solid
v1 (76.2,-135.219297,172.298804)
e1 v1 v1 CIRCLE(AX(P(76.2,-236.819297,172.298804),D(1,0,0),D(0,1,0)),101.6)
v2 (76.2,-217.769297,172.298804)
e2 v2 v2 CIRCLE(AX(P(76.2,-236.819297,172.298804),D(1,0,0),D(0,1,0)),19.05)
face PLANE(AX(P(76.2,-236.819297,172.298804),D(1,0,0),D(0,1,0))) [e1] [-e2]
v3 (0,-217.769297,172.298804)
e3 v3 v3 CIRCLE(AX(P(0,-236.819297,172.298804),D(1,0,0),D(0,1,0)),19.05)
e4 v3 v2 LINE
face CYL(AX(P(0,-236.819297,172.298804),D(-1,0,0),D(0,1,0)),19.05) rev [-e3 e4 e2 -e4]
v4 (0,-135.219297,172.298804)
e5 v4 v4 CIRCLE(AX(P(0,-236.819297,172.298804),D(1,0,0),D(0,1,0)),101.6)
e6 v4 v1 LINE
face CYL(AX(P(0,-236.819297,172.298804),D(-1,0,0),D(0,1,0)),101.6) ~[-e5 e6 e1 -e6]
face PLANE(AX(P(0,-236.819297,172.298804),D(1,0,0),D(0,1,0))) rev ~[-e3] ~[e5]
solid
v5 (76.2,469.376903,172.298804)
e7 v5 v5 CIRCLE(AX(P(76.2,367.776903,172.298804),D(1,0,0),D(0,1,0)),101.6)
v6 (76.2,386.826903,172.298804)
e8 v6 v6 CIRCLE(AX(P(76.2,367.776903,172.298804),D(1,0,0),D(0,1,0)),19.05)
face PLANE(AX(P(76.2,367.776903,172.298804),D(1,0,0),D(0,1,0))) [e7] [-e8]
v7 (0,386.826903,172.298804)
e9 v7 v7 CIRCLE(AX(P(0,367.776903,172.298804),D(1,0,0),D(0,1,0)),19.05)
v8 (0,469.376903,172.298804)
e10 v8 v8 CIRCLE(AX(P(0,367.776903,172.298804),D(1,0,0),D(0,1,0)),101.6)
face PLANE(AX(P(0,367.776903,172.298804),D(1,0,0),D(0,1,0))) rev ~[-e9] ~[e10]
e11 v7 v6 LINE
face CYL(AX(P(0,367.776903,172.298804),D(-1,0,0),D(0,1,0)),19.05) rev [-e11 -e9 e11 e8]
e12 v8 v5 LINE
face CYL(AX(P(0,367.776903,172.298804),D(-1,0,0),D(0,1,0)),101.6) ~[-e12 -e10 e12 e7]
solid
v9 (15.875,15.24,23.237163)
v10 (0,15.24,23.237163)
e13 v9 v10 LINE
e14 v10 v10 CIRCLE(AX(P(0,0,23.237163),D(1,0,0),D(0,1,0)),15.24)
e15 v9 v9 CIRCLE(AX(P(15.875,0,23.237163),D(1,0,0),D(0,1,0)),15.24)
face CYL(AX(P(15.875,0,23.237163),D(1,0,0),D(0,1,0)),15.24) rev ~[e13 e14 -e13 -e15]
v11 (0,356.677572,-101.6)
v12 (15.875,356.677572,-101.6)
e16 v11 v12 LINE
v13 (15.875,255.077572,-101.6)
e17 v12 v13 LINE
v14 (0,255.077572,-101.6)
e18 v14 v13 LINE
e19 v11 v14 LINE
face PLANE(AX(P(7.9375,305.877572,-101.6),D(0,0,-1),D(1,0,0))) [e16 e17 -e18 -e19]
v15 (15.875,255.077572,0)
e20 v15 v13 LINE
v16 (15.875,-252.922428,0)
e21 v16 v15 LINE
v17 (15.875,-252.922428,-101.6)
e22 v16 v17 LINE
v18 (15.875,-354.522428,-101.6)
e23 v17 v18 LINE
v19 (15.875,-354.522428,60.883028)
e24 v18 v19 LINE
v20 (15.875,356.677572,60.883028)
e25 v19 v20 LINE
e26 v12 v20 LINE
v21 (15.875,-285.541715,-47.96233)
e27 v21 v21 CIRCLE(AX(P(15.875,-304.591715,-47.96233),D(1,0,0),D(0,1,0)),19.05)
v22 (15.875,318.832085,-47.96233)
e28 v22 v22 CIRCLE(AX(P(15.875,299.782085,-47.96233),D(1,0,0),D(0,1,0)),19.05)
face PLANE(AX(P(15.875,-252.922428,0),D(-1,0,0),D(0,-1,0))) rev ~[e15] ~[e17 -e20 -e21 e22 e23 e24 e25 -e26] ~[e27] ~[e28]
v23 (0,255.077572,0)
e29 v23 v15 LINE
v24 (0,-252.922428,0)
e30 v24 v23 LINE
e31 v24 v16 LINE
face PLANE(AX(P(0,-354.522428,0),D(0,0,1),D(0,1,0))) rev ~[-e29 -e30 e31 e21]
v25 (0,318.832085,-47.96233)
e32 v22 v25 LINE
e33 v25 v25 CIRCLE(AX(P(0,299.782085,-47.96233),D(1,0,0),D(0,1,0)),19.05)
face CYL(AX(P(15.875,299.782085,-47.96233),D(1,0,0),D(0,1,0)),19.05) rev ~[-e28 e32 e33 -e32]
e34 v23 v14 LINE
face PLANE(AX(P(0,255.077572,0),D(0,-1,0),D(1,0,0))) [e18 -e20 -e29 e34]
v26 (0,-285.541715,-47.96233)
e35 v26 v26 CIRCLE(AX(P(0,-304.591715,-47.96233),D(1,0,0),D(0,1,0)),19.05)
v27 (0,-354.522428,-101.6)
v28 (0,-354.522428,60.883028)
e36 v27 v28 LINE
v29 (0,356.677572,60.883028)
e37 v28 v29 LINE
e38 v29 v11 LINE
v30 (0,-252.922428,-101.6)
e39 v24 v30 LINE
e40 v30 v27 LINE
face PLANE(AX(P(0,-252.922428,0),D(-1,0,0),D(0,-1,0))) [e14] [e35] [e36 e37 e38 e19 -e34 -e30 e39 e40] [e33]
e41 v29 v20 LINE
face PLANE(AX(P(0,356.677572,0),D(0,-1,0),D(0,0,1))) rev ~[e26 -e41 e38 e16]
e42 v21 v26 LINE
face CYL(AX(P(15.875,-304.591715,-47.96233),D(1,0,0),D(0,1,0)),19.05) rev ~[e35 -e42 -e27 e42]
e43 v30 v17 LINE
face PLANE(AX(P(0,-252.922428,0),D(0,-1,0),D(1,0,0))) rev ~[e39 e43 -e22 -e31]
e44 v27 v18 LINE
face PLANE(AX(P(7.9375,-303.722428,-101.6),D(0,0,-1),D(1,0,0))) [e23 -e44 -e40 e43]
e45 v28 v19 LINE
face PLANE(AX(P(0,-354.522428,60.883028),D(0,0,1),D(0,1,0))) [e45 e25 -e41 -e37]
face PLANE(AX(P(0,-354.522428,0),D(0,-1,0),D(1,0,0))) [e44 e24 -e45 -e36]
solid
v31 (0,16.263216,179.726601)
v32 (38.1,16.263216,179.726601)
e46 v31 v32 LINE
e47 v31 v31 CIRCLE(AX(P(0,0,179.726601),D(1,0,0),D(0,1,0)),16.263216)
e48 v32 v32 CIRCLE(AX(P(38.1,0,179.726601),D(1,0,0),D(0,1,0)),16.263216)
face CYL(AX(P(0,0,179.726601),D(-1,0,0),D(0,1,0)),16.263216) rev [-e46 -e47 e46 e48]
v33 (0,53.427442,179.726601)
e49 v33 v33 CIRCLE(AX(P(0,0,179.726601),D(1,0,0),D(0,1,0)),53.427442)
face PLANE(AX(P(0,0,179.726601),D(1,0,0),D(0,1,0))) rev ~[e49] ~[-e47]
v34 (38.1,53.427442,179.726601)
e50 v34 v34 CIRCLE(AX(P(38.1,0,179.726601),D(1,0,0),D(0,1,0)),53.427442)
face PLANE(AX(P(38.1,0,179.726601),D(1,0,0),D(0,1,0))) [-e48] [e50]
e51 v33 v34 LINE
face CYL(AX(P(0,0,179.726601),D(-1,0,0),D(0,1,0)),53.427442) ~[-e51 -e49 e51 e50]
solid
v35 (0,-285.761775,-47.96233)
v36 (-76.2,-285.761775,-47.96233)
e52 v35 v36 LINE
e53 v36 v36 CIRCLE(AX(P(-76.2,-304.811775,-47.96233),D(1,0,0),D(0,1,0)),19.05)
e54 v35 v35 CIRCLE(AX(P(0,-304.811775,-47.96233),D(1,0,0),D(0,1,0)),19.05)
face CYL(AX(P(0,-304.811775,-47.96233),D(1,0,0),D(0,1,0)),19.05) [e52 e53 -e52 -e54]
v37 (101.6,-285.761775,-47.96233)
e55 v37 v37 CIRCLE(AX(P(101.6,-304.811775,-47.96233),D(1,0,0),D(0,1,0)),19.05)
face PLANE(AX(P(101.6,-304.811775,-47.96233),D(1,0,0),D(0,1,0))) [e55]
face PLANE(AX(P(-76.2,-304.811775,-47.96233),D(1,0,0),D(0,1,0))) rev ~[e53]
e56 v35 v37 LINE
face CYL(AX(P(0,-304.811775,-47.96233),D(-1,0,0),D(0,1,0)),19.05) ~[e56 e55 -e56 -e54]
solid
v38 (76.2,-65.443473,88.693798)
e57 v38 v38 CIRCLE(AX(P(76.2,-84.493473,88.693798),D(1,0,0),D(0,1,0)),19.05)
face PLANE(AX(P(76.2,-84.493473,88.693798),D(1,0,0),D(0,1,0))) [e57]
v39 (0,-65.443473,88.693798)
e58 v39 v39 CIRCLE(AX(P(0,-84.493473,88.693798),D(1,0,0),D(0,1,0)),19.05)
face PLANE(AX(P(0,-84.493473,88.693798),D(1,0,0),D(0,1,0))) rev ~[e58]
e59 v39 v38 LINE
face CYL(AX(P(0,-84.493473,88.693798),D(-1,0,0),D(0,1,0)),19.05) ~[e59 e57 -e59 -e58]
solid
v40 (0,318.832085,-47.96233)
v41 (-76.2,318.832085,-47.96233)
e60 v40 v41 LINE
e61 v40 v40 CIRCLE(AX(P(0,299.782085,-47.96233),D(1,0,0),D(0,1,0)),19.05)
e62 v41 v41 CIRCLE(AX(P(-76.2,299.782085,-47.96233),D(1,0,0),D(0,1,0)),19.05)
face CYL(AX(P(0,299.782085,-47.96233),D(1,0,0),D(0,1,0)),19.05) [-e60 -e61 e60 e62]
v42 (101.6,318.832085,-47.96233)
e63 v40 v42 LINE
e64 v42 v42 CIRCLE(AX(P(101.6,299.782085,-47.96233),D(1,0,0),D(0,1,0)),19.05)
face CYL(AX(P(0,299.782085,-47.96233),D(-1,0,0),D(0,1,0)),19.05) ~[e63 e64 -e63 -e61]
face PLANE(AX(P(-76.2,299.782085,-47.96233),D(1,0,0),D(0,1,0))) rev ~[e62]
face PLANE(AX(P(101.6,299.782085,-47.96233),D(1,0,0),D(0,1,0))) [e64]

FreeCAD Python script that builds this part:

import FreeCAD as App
import Part
import Sketcher
Q = App.Units.Quantity


def add_polygon(sketch, points):
    """Adds a closed chain of lines whose ends are joined by coincident constraints."""
    first, n = sketch.GeometryCount, len(points)
    for a, b in zip(points, points[1:] + points[:1]):
        sketch.addGeometry(Part.LineSegment(App.Vector(*a, 0), App.Vector(*b, 0)), False)
    for i in range(n):
        sketch.addConstraint(Sketcher.Constraint("Coincident", first + i, 2, first + (i + 1) % n, 1))

doc = App.newDocument("Part")
body = doc.addObject("PartDesign::Body", "Body")

# Sketch on YZ plane
sketch1 = body.newObject("Sketcher::SketchObject", "Sketch")
sketch1.AttachmentSupport = (doc.getObject("YZ_Plane"), [""])
sketch1.MapMode = "FlatFace"
add_polygon(sketch1, [(-355, 61), (-355, 0), (357, 0), (357, 61)])  # lines 0-3
sketch1.addConstraint([
    Sketcher.Constraint("Vertical", 0),
    Sketcher.Constraint("Horizontal", 1),
    Sketcher.Constraint("Vertical", 2),
    Sketcher.Constraint("Horizontal", 3),
    Sketcher.Constraint("PointOnObject", 0, 2, -1),
    Sketcher.Constraint("DistanceX", 1, 1, 1, 2, Q("28 in")),
    Sketcher.Constraint("DistanceY", 0, 2, 0, 1, Q("60.883028 mm")),
    Sketcher.Constraint("DistanceX", 0, 2, -1, 1, Q("354.522428 mm")),
])
pad1 = body.newObject("PartDesign::Pad", "Pad")
pad1.Profile = sketch1
pad1.Length = Q("0.625 in")

# Sketch on XY plane
sketch2 = body.newObject("Sketcher::SketchObject", "Sketch001")
sketch2.AttachmentSupport = (doc.getObject("XY_Plane"), [""])
sketch2.MapMode = "FlatFace"
add_polygon(sketch2, [(0, -355), (0, -253), (16, -253), (16, -355)])  # lines 0-3
add_polygon(sketch2, [(0, 255), (0, 357), (16, 357), (16, 255)])  # lines 4-7
sketch2.addConstraint([
    Sketcher.Constraint("Vertical", 0),
    Sketcher.Constraint("Horizontal", 1),
    Sketcher.Constraint("Vertical", 2),
    Sketcher.Constraint("Horizontal", 3),
    Sketcher.Constraint("Vertical", 4),
    Sketcher.Constraint("Horizontal", 5),
    Sketcher.Constraint("Vertical", 6),
    Sketcher.Constraint("Horizontal", 7),
    Sketcher.Constraint("PointOnObject", 0, 2, -2),
    Sketcher.Constraint("PointOnObject", 4, 2, -2),
    Sketcher.Constraint("Vertical", 2, 2, 5, 2),
    Sketcher.Constraint("Equal", 2, 4),
    Sketcher.Constraint("DistanceY", 0, 1, 0, 2, Q("4 in")),
    Sketcher.Constraint("DistanceY", 0, 2, 4, 2, Q("24 in")),
    Sketcher.Constraint("DistanceX", 1, 1, 1, 2, Q("0.625 in")),
    Sketcher.Constraint("DistanceY", 0, 2, -1, 1, Q("252.922428 mm")),
])
pad2 = body.newObject("PartDesign::Pad", "Pad001")
pad2.Profile = sketch2
pad2.Length = Q("4 in")
pad2.Reversed = True

# Sketch on YZ plane
sketch3 = body.newObject("Sketcher::SketchObject", "Sketch002")
sketch3.AttachmentSupport = (doc.getObject("YZ_Plane"), [""])
sketch3.MapMode = "FlatFace"
sketch3.AttachmentOffset = App.Placement(App.Vector(0, 0, 0.625 * 25.4), App.Rotation())
sketch3.addGeometry(Part.Circle(App.Vector(0, 23, 0), App.Vector(0, 0, 1), 15), False)
sketch3.addConstraint([
    Sketcher.Constraint("PointOnObject", 0, 3, -2),
    Sketcher.Constraint("Diameter", 0, Q("1.2 in")),
    Sketcher.Constraint("DistanceY", -1, 1, 0, 3, Q("23.237163 mm")),
])
pocket1 = body.newObject("PartDesign::Pocket", "Pocket")
pocket1.Profile = sketch3
pocket1.Type = "ThroughAll"

# Sketch on YZ plane
sketch4 = body.newObject("Sketcher::SketchObject", "Sketch003")
sketch4.AttachmentSupport = (doc.getObject("YZ_Plane"), [""])
sketch4.MapMode = "FlatFace"
sketch4.AttachmentOffset = App.Placement(App.Vector(0, 0, 0.625 * 25.4), App.Rotation())
sketch4.addGeometry([
    Part.Circle(App.Vector(-305, -48, 0), App.Vector(0, 0, 1), 19),
    Part.Circle(App.Vector(300, -48, 0), App.Vector(0, 0, 1), 19),
], False)
sketch4.addConstraint([
    Sketcher.Constraint("Equal", 0, 1),
    Sketcher.Constraint("Horizontal", 0, 3, 1, 3),
    Sketcher.Constraint("Diameter", 0, Q("1.5 in")),
    Sketcher.Constraint("DistanceX", 0, 3, -1, 1, Q("11.9917998 in")),
    Sketcher.Constraint("DistanceX", 0, 3, 1, 3, Q("604.3738 mm")),
    Sketcher.Constraint("DistanceY", 0, 3, -1, 1, Q("47.96233 mm")),
])
pocket2 = body.newObject("PartDesign::Pocket", "Pocket001")
pocket2.Profile = sketch4
pocket2.Type = "ThroughAll"
body2 = doc.addObject("PartDesign::Body", "Body001")

# Sketch on YZ plane
sketch5 = body2.newObject("Sketcher::SketchObject", "Sketch004")
sketch5.AttachmentSupport = (doc.getObject("YZ_Plane001"), [""])
sketch5.MapMode = "FlatFace"
sketch5.addGeometry(Part.Circle(App.Vector(300, -48, 0), App.Vector(0, 0, 1), 19), False)
sketch5.addConstraint([
    Sketcher.Constraint("Diameter", 0, Q("1.5 in")),
    Sketcher.Constraint("DistanceY", 0, 3, -1, 1, Q("47.96233 mm")),
    Sketcher.Constraint("DistanceX", -1, 1, 0, 3, Q("299.782085 mm")),
])
pad3 = body2.newObject("PartDesign::Pad", "Pad002")
pad3.Profile = sketch5
pad3.Type = "TwoLengths"
pad3.Length = Q("3 in")
pad3.Length2 = Q("4 in")
pad3.Reversed = True
body3 = doc.addObject("PartDesign::Body", "Body002")

# Sketch on YZ plane
sketch6 = body3.newObject("Sketcher::SketchObject", "Sketch005")
sketch6.AttachmentSupport = (doc.getObject("YZ_Plane002"), [""])
sketch6.MapMode = "FlatFace"
sketch6.addGeometry(Part.Circle(App.Vector(-305, -48, 0), App.Vector(0, 0, 1), 19), False)
sketch6.addConstraint([
    Sketcher.Constraint("Diameter", 0, Q("1.5 in")),
    Sketcher.Constraint("DistanceY", 0, 3, -1, 1, Q("47.96233 mm")),
    Sketcher.Constraint("DistanceX", 0, 3, -1, 1, Q("304.811775 mm")),
])
pad4 = body3.newObject("PartDesign::Pad", "Pad003")
pad4.Profile = sketch6
pad4.Type = "TwoLengths"
pad4.Length = Q("3 in")
pad4.Length2 = Q("4 in")
pad4.Reversed = True
body4 = doc.addObject("PartDesign::Body", "Body003")

# Sketch on YZ plane
sketch7 = body4.newObject("Sketcher::SketchObject", "Sketch006")
sketch7.AttachmentSupport = (doc.getObject("YZ_Plane003"), [""])
sketch7.MapMode = "FlatFace"
sketch7.addGeometry([
    Part.Circle(App.Vector(-237, 172, 0), App.Vector(0, 0, 1), 102),
    Part.Circle(App.Vector(-237, 172, 0), App.Vector(0, 0, 1), 19),
], False)
sketch7.addConstraint([
    Sketcher.Constraint("Coincident", 1, 3, 0, 3),
    Sketcher.Constraint("Diameter", 0, Q("8 in")),
    Sketcher.Constraint("Diameter", 1, Q("1.5 in")),
    Sketcher.Constraint("DistanceX", 0, 3, -1, 1, Q("236.819297 mm")),
    Sketcher.Constraint("DistanceY", -1, 1, 0, 3, Q("172.298804 mm")),
])
pad5 = body4.newObject("PartDesign::Pad", "Pad004")
pad5.Profile = sketch7
pad5.Length = Q("3 in")
body5 = doc.addObject("PartDesign::Body", "Body004")

# Sketch on YZ plane
sketch8 = body5.newObject("Sketcher::SketchObject", "Sketch007")
sketch8.AttachmentSupport = (doc.getObject("YZ_Plane004"), [""])
sketch8.MapMode = "FlatFace"
sketch8.addGeometry([
    Part.Circle(App.Vector(368, 172, 0), App.Vector(0, 0, 1), 102),
    Part.Circle(App.Vector(368, 172, 0), App.Vector(0, 0, 1), 19),
], False)
sketch8.addConstraint([
    Sketcher.Constraint("Coincident", 1, 3, 0, 3),
    Sketcher.Constraint("Diameter", 0, Q("8 in")),
    Sketcher.Constraint("Diameter", 1, Q("1.5 in")),
    Sketcher.Constraint("DistanceX", -1, 1, 0, 3, Q("367.776903 mm")),
    Sketcher.Constraint("DistanceY", -1, 1, 0, 3, Q("172.298804 mm")),
])
pad6 = body5.newObject("PartDesign::Pad", "Pad005")
pad6.Profile = sketch8
pad6.Length = Q("3 in")
body6 = doc.addObject("PartDesign::Body", "Body005")

# Sketch on YZ plane
sketch9 = body6.newObject("Sketcher::SketchObject", "Sketch008")
sketch9.AttachmentSupport = (doc.getObject("YZ_Plane005"), [""])
sketch9.MapMode = "FlatFace"
sketch9.addGeometry([
    Part.Circle(App.Vector(0, 180, 0), App.Vector(0, 0, 1), 53),
    Part.Circle(App.Vector(0, 180, 0), App.Vector(0, 0, 1), 16),
], False)
sketch9.addConstraint([
    Sketcher.Constraint("Coincident", 1, 3, 0, 3),
    Sketcher.Constraint("PointOnObject", 0, 3, -2),
    Sketcher.Constraint("Diameter", 0, Q("106.854884 mm")),
    Sketcher.Constraint("Diameter", 1, Q("32.526432 mm")),
    Sketcher.Constraint("DistanceY", -1, 1, 0, 3, Q("179.726601 mm")),
])
pad7 = body6.newObject("PartDesign::Pad", "Pad006")
pad7.Profile = sketch9
pad7.Length = Q("1.5 in")
body7 = doc.addObject("PartDesign::Body", "Body006")

# Sketch on YZ plane
sketch10 = body7.newObject("Sketcher::SketchObject", "Sketch009")
sketch10.AttachmentSupport = (doc.getObject("YZ_Plane006"), [""])
sketch10.MapMode = "FlatFace"
sketch10.addGeometry(Part.Circle(App.Vector(-84, 89, 0), App.Vector(0, 0, 1), 19), False)
sketch10.addConstraint([
    Sketcher.Constraint("Diameter", 0, Q("1.5 in")),
    Sketcher.Constraint("DistanceX", 0, 3, -1, 1, Q("84.493473 mm")),
    Sketcher.Constraint("DistanceY", -1, 1, 0, 3, Q("88.693798 mm")),
])
pad8 = body7.newObject("PartDesign::Pad", "Pad007")
pad8.Profile = sketch10
pad8.Length = Q("3 in")

doc.recompute()
